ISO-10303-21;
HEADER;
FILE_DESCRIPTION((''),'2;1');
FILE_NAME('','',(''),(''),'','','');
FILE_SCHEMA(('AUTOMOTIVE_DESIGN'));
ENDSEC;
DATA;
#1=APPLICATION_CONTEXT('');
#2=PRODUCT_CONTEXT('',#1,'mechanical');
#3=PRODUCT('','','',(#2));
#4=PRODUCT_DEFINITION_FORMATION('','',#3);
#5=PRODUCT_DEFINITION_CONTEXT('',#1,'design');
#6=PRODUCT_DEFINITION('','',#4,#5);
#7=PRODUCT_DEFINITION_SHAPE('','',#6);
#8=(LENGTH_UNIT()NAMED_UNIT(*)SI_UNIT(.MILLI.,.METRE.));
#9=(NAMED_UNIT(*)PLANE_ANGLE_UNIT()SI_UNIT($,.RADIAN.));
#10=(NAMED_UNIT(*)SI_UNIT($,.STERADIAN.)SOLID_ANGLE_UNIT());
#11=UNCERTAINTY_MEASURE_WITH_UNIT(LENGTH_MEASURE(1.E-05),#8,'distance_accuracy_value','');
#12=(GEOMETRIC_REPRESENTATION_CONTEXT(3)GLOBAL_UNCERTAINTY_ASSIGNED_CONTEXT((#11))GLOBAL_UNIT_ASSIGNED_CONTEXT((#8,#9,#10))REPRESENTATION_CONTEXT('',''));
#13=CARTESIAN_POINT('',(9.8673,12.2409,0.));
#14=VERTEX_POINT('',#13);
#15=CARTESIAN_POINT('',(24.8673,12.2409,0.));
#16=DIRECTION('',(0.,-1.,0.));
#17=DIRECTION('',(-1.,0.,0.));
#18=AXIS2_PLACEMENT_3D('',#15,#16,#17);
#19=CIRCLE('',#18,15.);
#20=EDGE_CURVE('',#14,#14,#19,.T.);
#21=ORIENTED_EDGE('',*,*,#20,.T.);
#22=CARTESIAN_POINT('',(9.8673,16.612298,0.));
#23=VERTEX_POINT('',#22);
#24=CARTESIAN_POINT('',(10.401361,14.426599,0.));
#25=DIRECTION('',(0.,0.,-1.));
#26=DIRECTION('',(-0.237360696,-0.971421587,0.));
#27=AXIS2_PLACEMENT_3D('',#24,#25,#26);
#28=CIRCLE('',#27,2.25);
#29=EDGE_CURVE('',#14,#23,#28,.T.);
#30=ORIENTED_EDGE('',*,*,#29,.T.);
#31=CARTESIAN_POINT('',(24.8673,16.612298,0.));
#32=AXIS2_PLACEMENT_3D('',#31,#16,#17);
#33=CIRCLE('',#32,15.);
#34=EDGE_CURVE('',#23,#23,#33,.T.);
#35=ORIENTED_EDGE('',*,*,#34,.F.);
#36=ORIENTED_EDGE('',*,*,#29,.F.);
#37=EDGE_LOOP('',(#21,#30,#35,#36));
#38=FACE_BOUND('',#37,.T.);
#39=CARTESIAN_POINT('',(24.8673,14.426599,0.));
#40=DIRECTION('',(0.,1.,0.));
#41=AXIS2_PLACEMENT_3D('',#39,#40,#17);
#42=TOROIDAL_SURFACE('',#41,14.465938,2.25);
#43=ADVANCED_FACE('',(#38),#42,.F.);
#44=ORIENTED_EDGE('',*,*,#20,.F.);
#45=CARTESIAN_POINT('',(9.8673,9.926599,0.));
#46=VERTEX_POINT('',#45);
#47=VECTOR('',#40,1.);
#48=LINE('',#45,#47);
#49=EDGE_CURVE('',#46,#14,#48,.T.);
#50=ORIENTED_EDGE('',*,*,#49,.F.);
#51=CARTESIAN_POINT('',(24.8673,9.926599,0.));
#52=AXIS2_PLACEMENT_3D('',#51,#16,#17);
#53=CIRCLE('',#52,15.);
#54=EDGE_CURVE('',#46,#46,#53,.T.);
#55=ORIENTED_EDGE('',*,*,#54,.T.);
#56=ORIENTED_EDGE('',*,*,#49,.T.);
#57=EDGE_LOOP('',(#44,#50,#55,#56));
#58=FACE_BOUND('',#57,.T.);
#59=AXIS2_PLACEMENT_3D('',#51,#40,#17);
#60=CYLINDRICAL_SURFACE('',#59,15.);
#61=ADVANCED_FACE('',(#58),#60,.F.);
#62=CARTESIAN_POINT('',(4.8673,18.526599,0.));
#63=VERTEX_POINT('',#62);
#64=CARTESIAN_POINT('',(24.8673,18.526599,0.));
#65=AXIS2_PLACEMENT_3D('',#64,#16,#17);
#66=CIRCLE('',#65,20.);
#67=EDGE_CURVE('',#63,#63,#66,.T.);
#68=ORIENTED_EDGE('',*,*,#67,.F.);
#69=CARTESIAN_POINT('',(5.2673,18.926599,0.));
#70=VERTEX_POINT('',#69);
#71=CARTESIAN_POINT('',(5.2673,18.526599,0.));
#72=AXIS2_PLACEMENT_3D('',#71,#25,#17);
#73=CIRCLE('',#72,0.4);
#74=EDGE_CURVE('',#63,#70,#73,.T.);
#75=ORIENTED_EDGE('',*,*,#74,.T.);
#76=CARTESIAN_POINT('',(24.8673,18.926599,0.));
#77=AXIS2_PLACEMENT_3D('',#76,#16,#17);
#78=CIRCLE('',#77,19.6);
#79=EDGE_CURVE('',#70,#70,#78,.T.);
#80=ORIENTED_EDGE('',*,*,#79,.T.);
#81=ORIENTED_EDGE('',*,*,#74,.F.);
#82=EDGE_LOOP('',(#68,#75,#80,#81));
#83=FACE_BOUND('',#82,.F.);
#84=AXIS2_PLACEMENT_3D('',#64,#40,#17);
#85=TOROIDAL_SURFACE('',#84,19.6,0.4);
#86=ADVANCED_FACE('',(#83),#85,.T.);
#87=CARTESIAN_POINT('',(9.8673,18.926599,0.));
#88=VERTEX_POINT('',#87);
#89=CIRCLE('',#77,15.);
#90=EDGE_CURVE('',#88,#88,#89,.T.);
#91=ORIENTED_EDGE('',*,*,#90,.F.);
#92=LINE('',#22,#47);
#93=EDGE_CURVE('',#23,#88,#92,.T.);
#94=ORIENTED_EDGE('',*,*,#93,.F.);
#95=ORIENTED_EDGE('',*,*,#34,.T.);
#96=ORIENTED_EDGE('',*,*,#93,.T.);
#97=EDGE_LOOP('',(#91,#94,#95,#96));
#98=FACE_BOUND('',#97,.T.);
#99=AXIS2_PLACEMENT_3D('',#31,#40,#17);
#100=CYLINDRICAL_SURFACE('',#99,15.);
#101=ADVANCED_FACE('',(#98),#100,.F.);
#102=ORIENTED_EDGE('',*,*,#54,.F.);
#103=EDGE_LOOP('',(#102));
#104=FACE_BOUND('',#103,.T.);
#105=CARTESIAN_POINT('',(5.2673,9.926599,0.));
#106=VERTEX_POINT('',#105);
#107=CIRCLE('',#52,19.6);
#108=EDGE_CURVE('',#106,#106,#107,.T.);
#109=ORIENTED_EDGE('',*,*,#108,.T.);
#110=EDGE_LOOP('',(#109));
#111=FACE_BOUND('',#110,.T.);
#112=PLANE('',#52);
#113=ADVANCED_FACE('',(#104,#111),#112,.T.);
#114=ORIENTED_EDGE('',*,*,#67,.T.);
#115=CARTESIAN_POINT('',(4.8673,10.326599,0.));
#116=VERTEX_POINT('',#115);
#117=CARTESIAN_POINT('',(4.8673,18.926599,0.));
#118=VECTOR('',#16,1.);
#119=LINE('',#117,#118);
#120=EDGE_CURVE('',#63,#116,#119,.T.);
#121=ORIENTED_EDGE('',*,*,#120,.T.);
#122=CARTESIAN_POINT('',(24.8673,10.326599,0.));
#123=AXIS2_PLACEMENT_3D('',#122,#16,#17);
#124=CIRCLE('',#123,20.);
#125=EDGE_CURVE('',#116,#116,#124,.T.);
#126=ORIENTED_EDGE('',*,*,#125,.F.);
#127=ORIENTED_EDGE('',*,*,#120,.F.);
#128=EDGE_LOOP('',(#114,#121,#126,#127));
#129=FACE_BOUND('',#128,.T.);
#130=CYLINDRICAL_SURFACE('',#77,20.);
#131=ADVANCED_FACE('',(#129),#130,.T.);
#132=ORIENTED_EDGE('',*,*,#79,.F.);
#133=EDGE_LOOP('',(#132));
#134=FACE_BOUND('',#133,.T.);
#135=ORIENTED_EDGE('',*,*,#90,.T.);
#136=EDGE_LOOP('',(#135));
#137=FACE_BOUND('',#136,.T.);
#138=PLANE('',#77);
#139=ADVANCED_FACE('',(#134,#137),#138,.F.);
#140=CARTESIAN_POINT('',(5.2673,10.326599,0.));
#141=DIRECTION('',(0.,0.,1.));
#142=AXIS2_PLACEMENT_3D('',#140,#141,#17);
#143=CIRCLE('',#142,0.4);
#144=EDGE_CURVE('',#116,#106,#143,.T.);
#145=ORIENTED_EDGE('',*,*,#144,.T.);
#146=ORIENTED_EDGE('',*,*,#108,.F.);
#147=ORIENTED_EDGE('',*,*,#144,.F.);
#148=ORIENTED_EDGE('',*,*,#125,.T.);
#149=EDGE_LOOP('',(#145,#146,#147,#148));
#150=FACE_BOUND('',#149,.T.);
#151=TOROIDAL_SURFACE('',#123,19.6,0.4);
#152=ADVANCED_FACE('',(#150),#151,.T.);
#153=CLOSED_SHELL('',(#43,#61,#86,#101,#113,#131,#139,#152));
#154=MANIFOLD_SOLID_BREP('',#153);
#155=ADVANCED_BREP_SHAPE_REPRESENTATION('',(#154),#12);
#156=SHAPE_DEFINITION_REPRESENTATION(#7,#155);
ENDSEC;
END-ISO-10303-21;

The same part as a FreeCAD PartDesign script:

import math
import FreeCAD as App
import Part
import Sketcher


def edges_at(feature, points):
    """Names of the edges that pass closest to the given points."""
    edges = feature.Shape.Edges
    near = lambda p: min(range(len(edges)), key=lambda i: edges[i].distToShape(Part.Vertex(*p))[0])
    return sorted({f"Edge{near(p) + 1}" for p in points})

doc = App.newDocument("Part")
body = doc.addObject("PartDesign::Body", "Body")

sketch1 = body.newObject("Sketcher::SketchObject", "Sketch")
sketch1.AttachmentSupport = (doc.getObject("XY_Plane"), [""])
sketch1.MapMode = "FlatFace"
sketch1.addGeometry([
    Part.LineSegment(App.Vector(4.9, 18.9, 0), App.Vector(4.9, 9.9, 0)),
    Part.LineSegment(App.Vector(4.9, 9.9, 0), App.Vector(9.9, 9.9, 0)),
    Part.LineSegment(App.Vector(9.9, 9.9, 0), App.Vector(9.9, 12.2, 0)),
    Part.ArcOfCircle(Part.Circle(App.Vector(10.4, 14.4, 0), App.Vector(0, 0, 1), 2.2), math.radians(104), math.radians(256)),
    Part.LineSegment(App.Vector(9.9, 16.6, 0), App.Vector(9.9, 18.9, 0)),
    Part.LineSegment(App.Vector(9.9, 18.9, 0), App.Vector(4.9, 18.9, 0)),
], False)
sketch1.addGeometry(Part.LineSegment(App.Vector(24.9, 18.9, 0), App.Vector(24.9, 9.9, 0)), True)
sketch1.addConstraint([
    Sketcher.Constraint("Coincident", 0, 2, 1, 1),
    Sketcher.Constraint("Coincident", 1, 2, 2, 1),
    Sketcher.Constraint("Coincident", 2, 2, 3, 2),
    Sketcher.Constraint("Coincident", 3, 1, 4, 1),
    Sketcher.Constraint("Coincident", 4, 2, 5, 1),
    Sketcher.Constraint("Coincident", 5, 2, 0, 1),
    Sketcher.Constraint("Vertical", 0),
    Sketcher.Constraint("Horizontal", 1),
    Sketcher.Constraint("Vertical", 2),
    Sketcher.Constraint("Vertical", 4),
    Sketcher.Constraint("Horizontal", 5),
    Sketcher.Constraint("Vertical", 6),
    Sketcher.Constraint("Horizontal", 5, 2, 6, 1),
    Sketcher.Constraint("Horizontal", 1, 2, 6, 2),
    Sketcher.Constraint("Vertical", 2, 2, 3, 1),
    Sketcher.Constraint("Equal", 2, 4),
    Sketcher.Constraint("DistanceX", 1, 1, 1, 2, 5.0),
    Sketcher.Constraint("DistanceY", 0, 2, 0, 1, 9.0),
    Sketcher.Constraint("Radius", 3, 2.25),
    Sketcher.Constraint("DistanceX", 4, 2, 6, 1, 15.0),
    Sketcher.Constraint("DistanceY", 2, 1, 2, 2, 2.314301),
    Sketcher.Constraint("DistanceY", -1, 1, 3, 3, 14.426599),
    Sketcher.Constraint("DistanceX", -1, 1, 0, 2, 4.8673),
])
revolution = body.newObject("PartDesign::Revolution", "Revolution")
revolution.Profile = sketch1
revolution.ReferenceAxis = (sketch1, ["Axis0"])
revolution.Angle = 360
doc.recompute()

fillet = body.newObject("PartDesign::Fillet", "Fillet")
fillet.Base = (revolution, edges_at(revolution, [(44.867, 18.927, 0), (44.867, 9.927, 0)]))
fillet.Radius = 0.4

doc.recompute()
